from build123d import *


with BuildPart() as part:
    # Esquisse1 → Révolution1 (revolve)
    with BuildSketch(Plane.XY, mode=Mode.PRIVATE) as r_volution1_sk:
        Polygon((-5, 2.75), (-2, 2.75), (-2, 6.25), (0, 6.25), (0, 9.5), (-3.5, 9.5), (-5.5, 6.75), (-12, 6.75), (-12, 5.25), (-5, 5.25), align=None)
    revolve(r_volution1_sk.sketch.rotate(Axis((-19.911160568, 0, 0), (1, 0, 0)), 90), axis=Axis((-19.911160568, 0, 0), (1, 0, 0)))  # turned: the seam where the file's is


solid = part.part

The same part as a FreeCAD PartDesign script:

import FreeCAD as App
import Part
import Sketcher
Q = App.Units.Quantity


def add_polygon(sketch, points):
    """Adds a closed chain of lines whose ends are joined by coincident constraints."""
    first, n = sketch.GeometryCount, len(points)
    for a, b in zip(points, points[1:] + points[:1]):
        sketch.addGeometry(Part.LineSegment(App.Vector(*a, 0), App.Vector(*b, 0)), False)
    for i in range(n):
        sketch.addConstraint(Sketcher.Constraint("Coincident", first + i, 2, first + (i + 1) % n, 1))

doc = App.newDocument("Part")
body = doc.addObject("PartDesign::Body", "Body")

sketch1 = body.newObject("Sketcher::SketchObject", "Sketch")
sketch1.AttachmentSupport = (doc.getObject("XY_Plane"), [""])
sketch1.MapMode = "FlatFace"
add_polygon(sketch1, [(-5, 2.8), (-2, 2.8), (-2, 6.2), (0, 6.2), (0, 9.5), (-3.5, 9.5), (-5.5, 6.8), (-12, 6.8), (-12, 5.2), (-5, 5.2)])
sketch1.addConstraint([
    Sketcher.Constraint("Horizontal", 0),
    Sketcher.Constraint("Vertical", 1),
    Sketcher.Constraint("Horizontal", 2),
    Sketcher.Constraint("Vertical", 3),
    Sketcher.Constraint("Horizontal", 4),
    Sketcher.Constraint("Horizontal", 6),
    Sketcher.Constraint("Vertical", 7),
    Sketcher.Constraint("Horizontal", 8),
    Sketcher.Constraint("Vertical", 9),
    Sketcher.Constraint("PointOnObject", 2, 2, -2),
    Sketcher.Constraint("Equal", 4, 1),
    Sketcher.Constraint("DistanceX", 0, 1, 0, 2, Q("3 mm")),
    Sketcher.Constraint("DistanceX", 2, 1, 2, 2, Q("2 mm")),
    Sketcher.Constraint("DistanceX", 8, 1, 8, 2, Q("7 mm")),
    Sketcher.Constraint("DistanceX", 4, 2, 4, 1, Q("3.5 mm")),
    Sketcher.Constraint("DistanceX", 6, 2, 6, 1, Q("6.5 mm")),
    Sketcher.Constraint("DistanceY", 7, 2, 7, 1, Q("1.5 mm")),
    Sketcher.Constraint("DistanceY", 9, 2, 9, 1, Q("2.5 mm")),
    Sketcher.Constraint("DistanceY", 3, 1, 3, 2, Q("3.25 mm")),
    Sketcher.Constraint("DistanceY", -1, 1, 3, 2, Q("9.5 mm")),
])
revolution = body.newObject("PartDesign::Revolution", "Revolution")
revolution.Profile = sketch1
revolution.ReferenceAxis = (sketch1, ["H_Axis"])
revolution.Angle = 360

doc.recompute()
